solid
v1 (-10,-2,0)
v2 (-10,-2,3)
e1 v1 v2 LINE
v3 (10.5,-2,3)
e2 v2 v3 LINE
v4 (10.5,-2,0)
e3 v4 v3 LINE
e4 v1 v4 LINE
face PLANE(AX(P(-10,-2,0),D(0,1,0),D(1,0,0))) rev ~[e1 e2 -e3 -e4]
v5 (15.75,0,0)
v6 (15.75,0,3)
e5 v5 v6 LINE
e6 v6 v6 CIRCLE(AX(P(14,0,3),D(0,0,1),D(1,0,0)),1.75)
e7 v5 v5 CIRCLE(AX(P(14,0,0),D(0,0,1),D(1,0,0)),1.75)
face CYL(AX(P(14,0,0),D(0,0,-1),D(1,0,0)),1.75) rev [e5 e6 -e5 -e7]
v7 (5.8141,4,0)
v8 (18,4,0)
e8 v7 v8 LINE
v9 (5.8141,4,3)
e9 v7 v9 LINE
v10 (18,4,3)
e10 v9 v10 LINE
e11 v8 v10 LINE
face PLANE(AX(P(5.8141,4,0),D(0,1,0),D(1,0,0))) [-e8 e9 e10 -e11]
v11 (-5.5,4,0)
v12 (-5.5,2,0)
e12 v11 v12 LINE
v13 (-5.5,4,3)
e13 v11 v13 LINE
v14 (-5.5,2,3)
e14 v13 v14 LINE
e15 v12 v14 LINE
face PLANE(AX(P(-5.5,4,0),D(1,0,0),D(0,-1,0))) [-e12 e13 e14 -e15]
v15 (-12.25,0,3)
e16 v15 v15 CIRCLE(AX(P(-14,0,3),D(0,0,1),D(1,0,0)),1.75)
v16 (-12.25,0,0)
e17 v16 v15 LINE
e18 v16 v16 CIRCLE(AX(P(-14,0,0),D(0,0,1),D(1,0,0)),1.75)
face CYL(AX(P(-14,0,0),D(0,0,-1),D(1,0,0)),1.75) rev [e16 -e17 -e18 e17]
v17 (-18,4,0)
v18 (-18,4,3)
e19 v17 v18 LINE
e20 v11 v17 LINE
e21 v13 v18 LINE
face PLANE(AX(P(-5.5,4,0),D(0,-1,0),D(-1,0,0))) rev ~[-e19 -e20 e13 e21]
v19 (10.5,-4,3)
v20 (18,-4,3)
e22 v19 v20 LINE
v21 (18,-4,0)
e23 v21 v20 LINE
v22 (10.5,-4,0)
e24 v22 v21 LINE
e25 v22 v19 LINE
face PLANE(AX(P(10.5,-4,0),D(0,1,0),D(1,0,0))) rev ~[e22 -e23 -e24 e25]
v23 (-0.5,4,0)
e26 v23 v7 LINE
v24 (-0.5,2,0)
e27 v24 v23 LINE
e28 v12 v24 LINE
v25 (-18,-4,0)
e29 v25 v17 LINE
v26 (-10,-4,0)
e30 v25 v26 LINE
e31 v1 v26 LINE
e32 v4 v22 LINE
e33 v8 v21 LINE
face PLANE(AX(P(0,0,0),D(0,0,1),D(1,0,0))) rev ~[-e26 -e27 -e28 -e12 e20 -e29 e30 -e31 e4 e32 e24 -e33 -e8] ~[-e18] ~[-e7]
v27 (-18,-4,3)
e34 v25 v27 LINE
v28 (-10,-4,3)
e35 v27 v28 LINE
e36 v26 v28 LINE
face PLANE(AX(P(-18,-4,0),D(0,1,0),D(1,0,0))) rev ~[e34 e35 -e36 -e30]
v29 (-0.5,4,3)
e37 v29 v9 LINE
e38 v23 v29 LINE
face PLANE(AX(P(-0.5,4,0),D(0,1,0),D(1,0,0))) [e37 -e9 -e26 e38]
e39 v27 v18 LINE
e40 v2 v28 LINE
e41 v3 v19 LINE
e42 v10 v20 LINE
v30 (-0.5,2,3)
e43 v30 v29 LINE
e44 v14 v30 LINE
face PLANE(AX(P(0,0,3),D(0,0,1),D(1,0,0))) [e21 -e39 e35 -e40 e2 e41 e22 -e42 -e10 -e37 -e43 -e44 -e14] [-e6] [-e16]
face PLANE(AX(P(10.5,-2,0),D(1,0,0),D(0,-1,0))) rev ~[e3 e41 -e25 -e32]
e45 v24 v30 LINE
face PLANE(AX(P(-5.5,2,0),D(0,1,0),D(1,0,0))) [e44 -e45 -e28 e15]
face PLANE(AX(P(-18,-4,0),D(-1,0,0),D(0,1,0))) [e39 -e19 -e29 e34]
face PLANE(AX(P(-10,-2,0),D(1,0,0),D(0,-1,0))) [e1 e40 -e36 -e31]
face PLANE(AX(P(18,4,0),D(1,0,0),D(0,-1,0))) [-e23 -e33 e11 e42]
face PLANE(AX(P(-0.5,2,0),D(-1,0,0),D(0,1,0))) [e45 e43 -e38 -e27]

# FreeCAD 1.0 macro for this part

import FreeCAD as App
import Part
import Sketcher
from FreeCAD import Vector
Q = App.Units.Quantity

doc = App.newDocument("Part")
body = doc.addObject("PartDesign::Body", "Body")

sketch1 = doc.addObject("Sketcher::SketchObject", "Sketch")
body.addObject(sketch1)
sketch1.AttachmentSupport = (doc.XY_Plane, [""])
sketch1.MapMode = "FlatFace"
sketch1.addGeometry([
    Part.LineSegment(Vector(-18, 4, 0), Vector(-18, -4, 0)),
    Part.LineSegment(Vector(-18, -4, 0), Vector(-10, -4, 0)),
    Part.LineSegment(Vector(-10, -4, 0), Vector(-10, -2, 0)),
    Part.LineSegment(Vector(-10, -2, 0), Vector(10.5, -2, 0)),
    Part.LineSegment(Vector(10.5, -2, 0), Vector(10.5, -4, 0)),
    Part.LineSegment(Vector(10.5, -4, 0), Vector(18, -4, 0)),
    Part.LineSegment(Vector(18, -4, 0), Vector(18, 4, 0)),
    Part.LineSegment(Vector(18, 4, 0), Vector(-0.5, 4, 0)),
    Part.LineSegment(Vector(-0.5, 4, 0), Vector(-0.5, 2, 0)),
    Part.LineSegment(Vector(-0.5, 2, 0), Vector(-5.5, 2, 0)),
    Part.LineSegment(Vector(-5.5, 2, 0), Vector(-5.5, 4, 0)),
    Part.LineSegment(Vector(-5.5, 4, 0), Vector(-18, 4, 0)),
    Part.Circle(Vector(-14, 0, 0), Vector(0, 0, 1), 1.8),
    Part.Circle(Vector(14, 0, 0), Vector(0, 0, 1), 1.8),
], False)
sketch1.addConstraint([
    Sketcher.Constraint("Coincident", 0, 2, 1, 1),
    Sketcher.Constraint("Coincident", 1, 2, 2, 1),
    Sketcher.Constraint("Coincident", 2, 2, 3, 1),
    Sketcher.Constraint("Coincident", 3, 2, 4, 1),
    Sketcher.Constraint("Coincident", 4, 2, 5, 1),
    Sketcher.Constraint("Coincident", 5, 2, 6, 1),
    Sketcher.Constraint("Coincident", 6, 2, 7, 1),
    Sketcher.Constraint("Coincident", 7, 2, 8, 1),
    Sketcher.Constraint("Coincident", 8, 2, 9, 1),
    Sketcher.Constraint("Coincident", 9, 2, 10, 1),
    Sketcher.Constraint("Coincident", 10, 2, 11, 1),
    Sketcher.Constraint("Coincident", 11, 2, 0, 1),
    Sketcher.Constraint("Vertical", 0),
    Sketcher.Constraint("Horizontal", 1),
    Sketcher.Constraint("Vertical", 2),
    Sketcher.Constraint("Horizontal", 3),
    Sketcher.Constraint("Vertical", 4),
    Sketcher.Constraint("Horizontal", 5),
    Sketcher.Constraint("Vertical", 6),
    Sketcher.Constraint("Horizontal", 7),
    Sketcher.Constraint("Vertical", 8),
    Sketcher.Constraint("Horizontal", 9),
    Sketcher.Constraint("Vertical", 10),
    Sketcher.Constraint("Horizontal", 11),
    Sketcher.Constraint("Equal", 12, 13),
    Sketcher.Constraint("Symmetric", 12, 3, 13, 3, -1, 1),
    Sketcher.Constraint("Symmetric", 0, 2, 6, 2, -1, 1),
    Sketcher.Constraint("PointOnObject", 12, 3, -1),
    Sketcher.Constraint("Horizontal", 1, 2, 4, 2),
    Sketcher.Constraint("Horizontal", 7, 2, 10, 2),
    Sketcher.Constraint("Equal", 1, 0),
    Sketcher.Constraint("Equal", 4, 8),
    Sketcher.Constraint("Diameter", 12, Q("3.5 mm")),
    Sketcher.Constraint("DistanceX", 1, 1, 1, 2, Q("8 mm")),
    Sketcher.Constraint("DistanceX", 9, 2, 9, 1, Q("5 mm")),
    Sketcher.Constraint("DistanceY", 2, 1, 2, 2, Q("2 mm")),
    Sketcher.Constraint("DistanceX", 3, 1, 3, 2, Q("20.5 mm")),
    Sketcher.Constraint("DistanceX", 11, 2, 11, 1, Q("12.5 mm")),
    Sketcher.Constraint("DistanceX", 12, 3, -1, 1, Q("14 mm")),
    Sketcher.Constraint("DistanceX", 3, 2, 13, 3, Q("3.5 mm")),
])
pad1 = doc.addObject("PartDesign::Pad", "Pad")
body.addObject(pad1)
pad1.Profile = sketch1
pad1.Length = 3

doc.recompute()
